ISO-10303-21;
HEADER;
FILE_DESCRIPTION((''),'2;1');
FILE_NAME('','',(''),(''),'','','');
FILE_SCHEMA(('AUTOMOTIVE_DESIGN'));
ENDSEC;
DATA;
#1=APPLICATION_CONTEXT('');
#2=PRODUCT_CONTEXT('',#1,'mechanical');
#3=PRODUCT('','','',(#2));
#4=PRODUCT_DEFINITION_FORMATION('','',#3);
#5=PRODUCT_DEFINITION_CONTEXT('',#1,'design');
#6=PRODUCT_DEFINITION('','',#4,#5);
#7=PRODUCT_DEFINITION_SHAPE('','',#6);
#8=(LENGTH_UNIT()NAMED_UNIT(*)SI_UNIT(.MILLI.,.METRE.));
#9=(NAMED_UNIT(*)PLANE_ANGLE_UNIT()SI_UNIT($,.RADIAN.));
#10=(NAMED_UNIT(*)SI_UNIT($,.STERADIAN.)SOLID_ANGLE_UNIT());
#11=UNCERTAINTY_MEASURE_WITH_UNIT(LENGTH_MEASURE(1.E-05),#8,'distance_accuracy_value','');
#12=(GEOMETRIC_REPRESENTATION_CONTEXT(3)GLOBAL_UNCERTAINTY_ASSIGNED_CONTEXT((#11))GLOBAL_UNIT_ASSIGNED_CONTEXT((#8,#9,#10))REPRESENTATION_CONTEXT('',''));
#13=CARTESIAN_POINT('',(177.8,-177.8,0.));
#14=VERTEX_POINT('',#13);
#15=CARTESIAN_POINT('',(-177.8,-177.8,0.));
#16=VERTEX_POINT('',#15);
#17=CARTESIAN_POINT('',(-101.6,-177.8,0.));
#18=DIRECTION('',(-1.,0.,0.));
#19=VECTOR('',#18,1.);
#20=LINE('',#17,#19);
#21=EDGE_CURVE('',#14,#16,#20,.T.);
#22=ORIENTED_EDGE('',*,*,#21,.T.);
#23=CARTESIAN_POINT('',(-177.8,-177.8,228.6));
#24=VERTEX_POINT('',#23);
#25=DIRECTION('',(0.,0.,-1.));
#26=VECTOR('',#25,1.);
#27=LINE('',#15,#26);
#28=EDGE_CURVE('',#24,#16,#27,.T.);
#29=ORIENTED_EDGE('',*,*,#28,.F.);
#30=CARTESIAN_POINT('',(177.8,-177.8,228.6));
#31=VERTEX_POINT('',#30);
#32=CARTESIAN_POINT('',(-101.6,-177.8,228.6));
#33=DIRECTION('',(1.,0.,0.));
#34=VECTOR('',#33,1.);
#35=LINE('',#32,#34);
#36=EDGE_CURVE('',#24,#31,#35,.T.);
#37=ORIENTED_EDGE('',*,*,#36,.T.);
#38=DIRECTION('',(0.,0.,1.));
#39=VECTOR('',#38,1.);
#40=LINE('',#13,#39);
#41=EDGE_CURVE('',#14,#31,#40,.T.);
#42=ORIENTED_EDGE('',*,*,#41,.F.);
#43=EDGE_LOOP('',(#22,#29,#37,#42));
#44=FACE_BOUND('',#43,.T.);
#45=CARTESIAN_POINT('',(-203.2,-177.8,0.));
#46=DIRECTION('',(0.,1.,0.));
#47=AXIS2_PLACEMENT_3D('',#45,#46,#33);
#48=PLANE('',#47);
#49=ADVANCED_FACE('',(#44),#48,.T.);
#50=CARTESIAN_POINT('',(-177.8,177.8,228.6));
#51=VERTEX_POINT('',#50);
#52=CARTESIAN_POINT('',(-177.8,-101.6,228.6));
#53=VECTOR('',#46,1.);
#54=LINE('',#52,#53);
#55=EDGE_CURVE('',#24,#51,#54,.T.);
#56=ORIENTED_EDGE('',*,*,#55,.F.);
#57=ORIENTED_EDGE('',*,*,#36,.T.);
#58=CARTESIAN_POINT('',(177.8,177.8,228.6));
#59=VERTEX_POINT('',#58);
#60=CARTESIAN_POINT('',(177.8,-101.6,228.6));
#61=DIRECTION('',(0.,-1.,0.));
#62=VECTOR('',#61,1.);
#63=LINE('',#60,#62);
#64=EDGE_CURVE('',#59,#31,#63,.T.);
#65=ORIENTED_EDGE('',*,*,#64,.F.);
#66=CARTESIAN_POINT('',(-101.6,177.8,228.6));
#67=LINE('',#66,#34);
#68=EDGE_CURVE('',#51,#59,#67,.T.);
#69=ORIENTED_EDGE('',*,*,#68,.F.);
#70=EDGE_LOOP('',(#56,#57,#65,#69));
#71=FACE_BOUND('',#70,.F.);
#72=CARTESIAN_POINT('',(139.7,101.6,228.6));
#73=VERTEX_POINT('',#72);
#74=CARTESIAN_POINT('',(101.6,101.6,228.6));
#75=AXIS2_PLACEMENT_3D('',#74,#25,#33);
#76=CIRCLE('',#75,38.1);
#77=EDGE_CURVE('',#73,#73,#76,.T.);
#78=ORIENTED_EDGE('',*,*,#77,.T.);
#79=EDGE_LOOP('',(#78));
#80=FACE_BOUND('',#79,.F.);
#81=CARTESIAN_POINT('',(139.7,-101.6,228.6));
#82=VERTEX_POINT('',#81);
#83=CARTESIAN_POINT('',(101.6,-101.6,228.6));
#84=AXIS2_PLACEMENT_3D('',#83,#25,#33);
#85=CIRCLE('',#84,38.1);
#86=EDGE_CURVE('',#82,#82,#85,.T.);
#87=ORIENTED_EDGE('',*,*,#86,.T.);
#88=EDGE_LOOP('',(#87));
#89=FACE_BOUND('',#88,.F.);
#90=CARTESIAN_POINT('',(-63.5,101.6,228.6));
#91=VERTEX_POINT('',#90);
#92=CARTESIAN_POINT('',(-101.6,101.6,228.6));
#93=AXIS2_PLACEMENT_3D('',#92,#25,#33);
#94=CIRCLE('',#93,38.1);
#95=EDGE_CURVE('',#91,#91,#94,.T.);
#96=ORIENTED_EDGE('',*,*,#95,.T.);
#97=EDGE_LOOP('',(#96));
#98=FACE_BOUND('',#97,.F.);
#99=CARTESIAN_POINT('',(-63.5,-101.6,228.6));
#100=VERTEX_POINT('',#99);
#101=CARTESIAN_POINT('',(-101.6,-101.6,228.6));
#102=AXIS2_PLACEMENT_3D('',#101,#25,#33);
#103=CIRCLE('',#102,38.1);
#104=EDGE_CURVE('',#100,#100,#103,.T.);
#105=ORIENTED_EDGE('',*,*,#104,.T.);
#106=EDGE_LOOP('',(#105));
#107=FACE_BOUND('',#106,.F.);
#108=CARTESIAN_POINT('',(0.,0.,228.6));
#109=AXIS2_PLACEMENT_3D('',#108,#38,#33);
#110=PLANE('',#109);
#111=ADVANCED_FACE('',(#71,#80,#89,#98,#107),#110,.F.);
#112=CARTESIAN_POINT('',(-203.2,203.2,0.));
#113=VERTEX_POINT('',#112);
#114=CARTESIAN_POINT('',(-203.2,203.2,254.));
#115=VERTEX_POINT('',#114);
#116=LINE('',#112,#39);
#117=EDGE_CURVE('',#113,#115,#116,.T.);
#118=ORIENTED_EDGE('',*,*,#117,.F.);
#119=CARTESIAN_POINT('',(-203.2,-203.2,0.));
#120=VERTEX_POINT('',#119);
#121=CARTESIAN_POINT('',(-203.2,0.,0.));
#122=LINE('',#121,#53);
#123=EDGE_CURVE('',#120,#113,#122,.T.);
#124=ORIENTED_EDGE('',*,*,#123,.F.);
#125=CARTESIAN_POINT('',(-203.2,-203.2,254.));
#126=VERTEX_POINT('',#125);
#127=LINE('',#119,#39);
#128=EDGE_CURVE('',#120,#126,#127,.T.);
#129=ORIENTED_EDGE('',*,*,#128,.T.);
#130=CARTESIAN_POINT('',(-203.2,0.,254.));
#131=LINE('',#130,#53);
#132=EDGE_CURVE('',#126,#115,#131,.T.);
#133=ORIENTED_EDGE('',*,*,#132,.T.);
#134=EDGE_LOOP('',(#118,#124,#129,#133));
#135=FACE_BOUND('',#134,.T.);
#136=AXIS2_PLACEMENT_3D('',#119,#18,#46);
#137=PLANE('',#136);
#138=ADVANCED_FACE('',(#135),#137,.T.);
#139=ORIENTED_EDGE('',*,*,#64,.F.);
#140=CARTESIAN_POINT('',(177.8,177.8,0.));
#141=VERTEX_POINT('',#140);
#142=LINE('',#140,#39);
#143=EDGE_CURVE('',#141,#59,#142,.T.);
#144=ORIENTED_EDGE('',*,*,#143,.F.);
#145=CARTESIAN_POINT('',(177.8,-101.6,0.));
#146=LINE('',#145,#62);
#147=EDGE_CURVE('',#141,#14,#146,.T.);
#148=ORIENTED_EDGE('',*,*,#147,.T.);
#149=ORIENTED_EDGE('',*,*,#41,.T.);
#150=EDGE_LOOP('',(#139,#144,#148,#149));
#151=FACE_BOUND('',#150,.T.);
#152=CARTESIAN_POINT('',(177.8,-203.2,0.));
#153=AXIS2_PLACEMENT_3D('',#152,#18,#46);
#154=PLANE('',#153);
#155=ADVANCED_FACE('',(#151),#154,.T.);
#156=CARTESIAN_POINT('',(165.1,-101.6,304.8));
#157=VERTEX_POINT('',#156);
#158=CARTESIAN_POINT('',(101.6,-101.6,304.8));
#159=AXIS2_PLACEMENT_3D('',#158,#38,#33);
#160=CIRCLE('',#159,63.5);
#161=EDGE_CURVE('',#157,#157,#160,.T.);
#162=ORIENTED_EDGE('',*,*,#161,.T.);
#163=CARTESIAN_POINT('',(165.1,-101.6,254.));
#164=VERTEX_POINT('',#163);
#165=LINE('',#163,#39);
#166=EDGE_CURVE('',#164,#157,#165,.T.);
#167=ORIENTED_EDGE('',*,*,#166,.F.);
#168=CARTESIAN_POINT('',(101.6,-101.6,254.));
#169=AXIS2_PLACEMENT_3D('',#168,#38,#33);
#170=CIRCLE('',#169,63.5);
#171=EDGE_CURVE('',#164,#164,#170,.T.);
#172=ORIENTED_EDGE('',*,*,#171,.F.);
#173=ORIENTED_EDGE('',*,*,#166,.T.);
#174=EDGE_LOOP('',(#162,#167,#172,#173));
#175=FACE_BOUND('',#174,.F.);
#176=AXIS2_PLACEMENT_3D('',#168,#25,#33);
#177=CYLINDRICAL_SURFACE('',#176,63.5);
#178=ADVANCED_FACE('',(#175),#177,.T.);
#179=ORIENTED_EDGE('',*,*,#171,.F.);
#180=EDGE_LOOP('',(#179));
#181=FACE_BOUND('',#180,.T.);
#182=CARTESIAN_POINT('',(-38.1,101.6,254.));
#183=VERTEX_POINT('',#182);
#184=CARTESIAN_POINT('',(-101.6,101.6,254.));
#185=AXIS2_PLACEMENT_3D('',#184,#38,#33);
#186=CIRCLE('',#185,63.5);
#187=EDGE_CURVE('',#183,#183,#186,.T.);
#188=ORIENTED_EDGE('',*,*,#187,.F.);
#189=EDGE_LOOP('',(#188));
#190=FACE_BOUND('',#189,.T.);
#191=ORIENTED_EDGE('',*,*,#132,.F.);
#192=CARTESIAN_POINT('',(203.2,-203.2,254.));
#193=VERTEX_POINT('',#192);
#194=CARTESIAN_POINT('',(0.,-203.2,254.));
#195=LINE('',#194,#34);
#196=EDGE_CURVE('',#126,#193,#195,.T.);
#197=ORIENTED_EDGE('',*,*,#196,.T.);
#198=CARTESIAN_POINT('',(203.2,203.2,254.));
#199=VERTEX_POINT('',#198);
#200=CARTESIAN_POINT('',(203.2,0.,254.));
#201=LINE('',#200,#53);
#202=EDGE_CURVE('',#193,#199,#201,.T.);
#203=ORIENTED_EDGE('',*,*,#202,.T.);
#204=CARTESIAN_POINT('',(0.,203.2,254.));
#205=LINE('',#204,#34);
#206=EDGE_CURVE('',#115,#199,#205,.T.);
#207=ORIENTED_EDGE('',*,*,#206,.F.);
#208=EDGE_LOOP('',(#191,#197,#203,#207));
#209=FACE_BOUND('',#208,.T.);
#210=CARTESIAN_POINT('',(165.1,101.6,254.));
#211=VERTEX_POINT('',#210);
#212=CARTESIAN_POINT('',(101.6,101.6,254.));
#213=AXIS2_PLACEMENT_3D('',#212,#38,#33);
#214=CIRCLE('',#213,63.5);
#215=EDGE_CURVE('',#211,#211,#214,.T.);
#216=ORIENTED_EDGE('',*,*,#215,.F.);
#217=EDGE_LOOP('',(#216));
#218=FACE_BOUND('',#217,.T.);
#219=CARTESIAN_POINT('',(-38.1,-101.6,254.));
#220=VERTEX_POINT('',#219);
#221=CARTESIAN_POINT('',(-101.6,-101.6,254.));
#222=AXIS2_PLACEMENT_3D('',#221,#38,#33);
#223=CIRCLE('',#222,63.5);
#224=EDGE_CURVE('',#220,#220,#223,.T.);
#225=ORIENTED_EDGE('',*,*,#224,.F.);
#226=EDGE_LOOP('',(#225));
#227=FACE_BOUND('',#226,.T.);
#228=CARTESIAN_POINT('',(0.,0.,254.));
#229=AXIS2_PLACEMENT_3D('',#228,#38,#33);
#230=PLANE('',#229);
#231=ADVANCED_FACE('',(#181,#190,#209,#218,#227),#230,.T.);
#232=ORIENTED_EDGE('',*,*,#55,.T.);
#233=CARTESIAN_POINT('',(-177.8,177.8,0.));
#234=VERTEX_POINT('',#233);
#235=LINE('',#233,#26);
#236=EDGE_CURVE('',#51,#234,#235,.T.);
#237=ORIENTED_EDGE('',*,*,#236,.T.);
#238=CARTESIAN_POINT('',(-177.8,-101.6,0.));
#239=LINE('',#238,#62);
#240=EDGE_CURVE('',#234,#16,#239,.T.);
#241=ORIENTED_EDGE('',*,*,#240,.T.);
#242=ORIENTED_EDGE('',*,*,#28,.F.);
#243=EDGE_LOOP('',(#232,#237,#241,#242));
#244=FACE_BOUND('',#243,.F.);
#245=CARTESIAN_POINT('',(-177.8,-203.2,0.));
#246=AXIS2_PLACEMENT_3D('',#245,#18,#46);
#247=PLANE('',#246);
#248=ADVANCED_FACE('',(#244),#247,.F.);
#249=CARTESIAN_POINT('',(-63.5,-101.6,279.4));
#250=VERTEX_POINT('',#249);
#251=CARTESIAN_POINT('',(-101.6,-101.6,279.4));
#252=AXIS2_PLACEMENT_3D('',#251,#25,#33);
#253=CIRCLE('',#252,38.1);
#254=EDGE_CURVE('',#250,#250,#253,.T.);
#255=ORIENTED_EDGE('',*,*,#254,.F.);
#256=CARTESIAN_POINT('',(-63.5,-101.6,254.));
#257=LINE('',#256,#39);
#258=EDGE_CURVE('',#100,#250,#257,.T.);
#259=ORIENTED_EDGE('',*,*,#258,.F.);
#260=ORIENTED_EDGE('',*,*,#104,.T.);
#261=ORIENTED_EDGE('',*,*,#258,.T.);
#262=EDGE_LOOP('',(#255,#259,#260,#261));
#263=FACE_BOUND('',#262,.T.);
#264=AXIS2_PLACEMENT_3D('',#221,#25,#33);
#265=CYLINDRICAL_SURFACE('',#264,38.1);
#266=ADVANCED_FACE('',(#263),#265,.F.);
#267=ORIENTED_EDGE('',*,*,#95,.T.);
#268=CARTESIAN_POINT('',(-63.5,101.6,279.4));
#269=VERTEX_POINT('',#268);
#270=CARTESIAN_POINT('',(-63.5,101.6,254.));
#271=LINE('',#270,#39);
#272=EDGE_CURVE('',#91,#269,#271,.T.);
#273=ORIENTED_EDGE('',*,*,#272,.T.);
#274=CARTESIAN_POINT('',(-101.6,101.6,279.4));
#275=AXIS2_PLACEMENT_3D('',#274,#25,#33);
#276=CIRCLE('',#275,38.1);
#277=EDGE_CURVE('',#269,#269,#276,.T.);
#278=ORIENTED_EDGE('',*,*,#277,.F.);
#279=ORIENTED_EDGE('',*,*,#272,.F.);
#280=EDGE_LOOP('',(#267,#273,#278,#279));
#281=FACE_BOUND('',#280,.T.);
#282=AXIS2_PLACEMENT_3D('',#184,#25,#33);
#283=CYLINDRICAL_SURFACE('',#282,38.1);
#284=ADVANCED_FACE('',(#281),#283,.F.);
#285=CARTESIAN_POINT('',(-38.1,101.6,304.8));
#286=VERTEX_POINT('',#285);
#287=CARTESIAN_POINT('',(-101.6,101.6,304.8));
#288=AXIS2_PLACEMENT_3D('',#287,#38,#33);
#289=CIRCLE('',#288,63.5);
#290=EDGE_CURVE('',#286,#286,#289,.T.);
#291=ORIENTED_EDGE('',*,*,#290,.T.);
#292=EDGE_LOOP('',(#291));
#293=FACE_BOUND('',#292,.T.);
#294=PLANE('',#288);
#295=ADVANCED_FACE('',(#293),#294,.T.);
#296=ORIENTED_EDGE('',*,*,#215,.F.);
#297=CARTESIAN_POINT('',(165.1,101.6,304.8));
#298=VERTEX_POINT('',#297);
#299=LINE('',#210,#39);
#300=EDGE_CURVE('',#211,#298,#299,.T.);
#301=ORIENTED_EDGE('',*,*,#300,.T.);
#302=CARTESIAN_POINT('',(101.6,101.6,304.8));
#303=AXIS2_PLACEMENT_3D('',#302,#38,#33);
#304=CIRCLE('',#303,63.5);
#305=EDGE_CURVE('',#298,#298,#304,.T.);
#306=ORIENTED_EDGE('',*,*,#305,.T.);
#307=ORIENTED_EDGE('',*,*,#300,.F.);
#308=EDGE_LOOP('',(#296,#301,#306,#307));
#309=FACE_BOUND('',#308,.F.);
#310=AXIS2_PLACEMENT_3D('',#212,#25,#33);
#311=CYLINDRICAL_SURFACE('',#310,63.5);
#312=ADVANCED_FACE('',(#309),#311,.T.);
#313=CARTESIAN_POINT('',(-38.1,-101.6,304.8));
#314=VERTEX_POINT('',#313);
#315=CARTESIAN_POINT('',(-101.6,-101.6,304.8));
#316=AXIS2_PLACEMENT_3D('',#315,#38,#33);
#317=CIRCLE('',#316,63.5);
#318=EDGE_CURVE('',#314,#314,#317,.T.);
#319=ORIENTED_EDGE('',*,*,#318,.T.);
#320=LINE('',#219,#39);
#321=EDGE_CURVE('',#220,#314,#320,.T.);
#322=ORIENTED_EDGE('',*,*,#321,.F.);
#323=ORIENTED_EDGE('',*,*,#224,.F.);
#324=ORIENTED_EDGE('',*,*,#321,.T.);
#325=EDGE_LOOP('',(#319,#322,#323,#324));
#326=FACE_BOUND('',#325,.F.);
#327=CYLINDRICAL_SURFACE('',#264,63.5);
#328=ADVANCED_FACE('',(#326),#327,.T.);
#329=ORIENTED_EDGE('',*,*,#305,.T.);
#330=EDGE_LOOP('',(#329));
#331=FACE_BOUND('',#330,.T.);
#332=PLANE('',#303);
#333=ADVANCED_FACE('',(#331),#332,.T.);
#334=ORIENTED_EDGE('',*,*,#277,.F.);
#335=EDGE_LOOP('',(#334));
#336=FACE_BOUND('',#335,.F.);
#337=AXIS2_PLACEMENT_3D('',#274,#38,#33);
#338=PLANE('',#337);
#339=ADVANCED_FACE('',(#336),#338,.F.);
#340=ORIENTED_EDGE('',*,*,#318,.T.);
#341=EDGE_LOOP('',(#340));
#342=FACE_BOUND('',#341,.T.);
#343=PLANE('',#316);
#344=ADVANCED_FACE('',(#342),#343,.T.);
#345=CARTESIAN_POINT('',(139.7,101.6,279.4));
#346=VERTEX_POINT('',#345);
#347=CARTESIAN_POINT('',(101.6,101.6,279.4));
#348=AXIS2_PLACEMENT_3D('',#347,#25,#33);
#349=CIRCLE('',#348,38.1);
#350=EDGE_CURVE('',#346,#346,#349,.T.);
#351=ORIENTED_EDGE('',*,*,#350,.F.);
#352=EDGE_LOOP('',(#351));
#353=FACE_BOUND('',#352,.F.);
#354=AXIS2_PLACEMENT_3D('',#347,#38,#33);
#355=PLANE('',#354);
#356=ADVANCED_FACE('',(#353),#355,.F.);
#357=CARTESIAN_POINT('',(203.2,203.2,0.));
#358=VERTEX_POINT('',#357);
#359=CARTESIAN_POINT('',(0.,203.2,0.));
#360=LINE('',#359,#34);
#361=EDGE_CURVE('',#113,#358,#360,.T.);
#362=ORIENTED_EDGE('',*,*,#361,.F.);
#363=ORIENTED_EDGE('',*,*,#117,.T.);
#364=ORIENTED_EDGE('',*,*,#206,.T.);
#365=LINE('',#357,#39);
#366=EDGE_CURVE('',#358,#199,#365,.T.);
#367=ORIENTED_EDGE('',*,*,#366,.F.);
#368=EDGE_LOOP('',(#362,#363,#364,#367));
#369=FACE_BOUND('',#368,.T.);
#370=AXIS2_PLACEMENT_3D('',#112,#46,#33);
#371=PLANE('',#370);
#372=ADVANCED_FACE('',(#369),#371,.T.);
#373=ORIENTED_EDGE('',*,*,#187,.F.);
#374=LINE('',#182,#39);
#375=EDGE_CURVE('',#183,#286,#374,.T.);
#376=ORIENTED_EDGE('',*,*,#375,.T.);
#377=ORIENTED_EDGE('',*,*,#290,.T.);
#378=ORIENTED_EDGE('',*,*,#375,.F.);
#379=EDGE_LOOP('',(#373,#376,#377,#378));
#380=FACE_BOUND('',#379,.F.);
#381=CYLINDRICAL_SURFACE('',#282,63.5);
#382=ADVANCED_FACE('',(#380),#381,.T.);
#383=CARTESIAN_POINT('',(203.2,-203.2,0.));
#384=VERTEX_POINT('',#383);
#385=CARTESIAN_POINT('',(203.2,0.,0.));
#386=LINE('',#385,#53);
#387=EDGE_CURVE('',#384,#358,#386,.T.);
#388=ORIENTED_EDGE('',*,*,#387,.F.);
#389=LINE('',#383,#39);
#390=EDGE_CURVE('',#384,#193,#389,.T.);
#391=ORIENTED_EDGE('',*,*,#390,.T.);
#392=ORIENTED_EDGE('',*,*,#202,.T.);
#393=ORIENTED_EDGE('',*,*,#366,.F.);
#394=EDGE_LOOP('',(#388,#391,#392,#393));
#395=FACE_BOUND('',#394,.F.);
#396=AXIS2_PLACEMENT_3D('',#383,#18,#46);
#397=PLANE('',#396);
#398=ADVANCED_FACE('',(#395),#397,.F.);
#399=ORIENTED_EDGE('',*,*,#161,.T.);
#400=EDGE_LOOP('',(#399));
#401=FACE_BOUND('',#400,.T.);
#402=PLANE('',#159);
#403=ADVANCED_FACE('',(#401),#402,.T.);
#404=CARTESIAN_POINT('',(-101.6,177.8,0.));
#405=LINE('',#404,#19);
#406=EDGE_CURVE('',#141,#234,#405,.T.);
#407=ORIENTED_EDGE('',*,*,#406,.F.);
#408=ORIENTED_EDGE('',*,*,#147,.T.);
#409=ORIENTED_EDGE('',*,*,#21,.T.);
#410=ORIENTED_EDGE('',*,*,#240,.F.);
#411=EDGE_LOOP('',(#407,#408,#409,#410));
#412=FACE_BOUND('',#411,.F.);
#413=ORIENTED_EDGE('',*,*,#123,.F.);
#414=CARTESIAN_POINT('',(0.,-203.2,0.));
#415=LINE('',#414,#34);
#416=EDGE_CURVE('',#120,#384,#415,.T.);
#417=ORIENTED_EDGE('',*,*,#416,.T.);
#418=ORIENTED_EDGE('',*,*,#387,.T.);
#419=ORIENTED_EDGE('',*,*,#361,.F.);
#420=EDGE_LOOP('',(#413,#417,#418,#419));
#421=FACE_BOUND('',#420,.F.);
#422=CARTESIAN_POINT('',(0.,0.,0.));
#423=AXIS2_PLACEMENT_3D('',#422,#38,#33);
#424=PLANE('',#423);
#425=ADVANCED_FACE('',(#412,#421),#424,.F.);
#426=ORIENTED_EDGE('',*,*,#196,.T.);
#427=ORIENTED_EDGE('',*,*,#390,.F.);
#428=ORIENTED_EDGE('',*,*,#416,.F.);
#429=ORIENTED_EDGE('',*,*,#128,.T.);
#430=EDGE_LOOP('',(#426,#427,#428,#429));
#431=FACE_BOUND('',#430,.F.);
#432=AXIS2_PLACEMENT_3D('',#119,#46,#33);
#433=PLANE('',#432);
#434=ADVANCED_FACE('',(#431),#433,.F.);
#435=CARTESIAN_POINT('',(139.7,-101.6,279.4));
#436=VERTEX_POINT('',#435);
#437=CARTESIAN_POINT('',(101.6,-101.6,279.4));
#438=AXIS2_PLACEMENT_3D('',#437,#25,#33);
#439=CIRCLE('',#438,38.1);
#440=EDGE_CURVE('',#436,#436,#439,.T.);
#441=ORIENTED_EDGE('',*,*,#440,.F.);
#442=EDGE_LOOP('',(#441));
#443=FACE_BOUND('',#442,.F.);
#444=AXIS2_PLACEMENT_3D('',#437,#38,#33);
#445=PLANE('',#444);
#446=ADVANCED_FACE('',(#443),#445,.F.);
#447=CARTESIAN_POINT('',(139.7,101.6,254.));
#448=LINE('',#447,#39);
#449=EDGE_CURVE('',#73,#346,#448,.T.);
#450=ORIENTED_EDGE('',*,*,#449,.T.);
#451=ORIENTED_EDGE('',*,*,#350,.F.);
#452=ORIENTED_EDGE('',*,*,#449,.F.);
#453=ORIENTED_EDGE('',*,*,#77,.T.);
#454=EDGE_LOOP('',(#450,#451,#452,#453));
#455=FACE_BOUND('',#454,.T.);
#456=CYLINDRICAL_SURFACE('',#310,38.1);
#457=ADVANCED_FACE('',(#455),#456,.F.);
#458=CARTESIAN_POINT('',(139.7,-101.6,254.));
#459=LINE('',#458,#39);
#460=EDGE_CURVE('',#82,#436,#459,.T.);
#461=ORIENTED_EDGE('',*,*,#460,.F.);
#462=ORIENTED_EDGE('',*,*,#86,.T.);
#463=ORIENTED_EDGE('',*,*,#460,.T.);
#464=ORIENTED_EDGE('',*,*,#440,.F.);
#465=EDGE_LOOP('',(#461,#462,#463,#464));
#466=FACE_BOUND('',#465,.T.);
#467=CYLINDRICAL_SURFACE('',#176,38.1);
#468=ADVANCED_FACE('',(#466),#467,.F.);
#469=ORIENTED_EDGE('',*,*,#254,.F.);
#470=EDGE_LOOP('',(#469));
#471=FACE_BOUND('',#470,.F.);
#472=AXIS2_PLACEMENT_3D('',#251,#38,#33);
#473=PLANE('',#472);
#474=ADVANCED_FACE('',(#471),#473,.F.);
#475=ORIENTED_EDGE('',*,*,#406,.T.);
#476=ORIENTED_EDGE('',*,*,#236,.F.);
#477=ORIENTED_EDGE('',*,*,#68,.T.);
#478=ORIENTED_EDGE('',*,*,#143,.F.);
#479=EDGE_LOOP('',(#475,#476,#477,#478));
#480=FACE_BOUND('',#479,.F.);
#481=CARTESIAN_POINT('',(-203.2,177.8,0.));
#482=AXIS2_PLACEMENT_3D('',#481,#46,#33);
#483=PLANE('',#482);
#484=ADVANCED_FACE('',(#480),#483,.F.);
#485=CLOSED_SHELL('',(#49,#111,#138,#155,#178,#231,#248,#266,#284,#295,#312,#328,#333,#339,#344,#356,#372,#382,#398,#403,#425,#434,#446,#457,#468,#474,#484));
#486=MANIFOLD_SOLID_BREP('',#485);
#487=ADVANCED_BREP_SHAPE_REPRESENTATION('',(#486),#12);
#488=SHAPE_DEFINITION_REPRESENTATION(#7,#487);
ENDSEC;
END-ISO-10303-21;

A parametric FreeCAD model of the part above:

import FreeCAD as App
import Part
import Sketcher
Q = App.Units.Quantity


def faces_at(feature, points):
    """Names of the faces that lie closest to the given points."""
    faces = feature.Shape.Faces
    near = lambda p: min(range(len(faces)), key=lambda i: faces[i].distToShape(Part.Vertex(*p))[0])
    return sorted({f"Face{near(p) + 1}" for p in points})


def add_polygon(sketch, points):
    """Adds a closed chain of lines whose ends are joined by coincident constraints."""
    first, n = sketch.GeometryCount, len(points)
    for a, b in zip(points, points[1:] + points[:1]):
        sketch.addGeometry(Part.LineSegment(App.Vector(*a, 0), App.Vector(*b, 0)), False)
    for i in range(n):
        sketch.addConstraint(Sketcher.Constraint("Coincident", first + i, 2, first + (i + 1) % n, 1))

doc = App.newDocument("Part")
body = doc.addObject("PartDesign::Body", "Body")

# Sketch on XY plane
sketch1 = body.newObject("Sketcher::SketchObject", "Sketch")
sketch1.AttachmentSupport = (doc.getObject("XY_Plane"), [""])
sketch1.MapMode = "FlatFace"
add_polygon(sketch1, [(-203.2, 203.2), (-203.2, -203.2), (203.2, -203.2), (203.2, 203.2)])  # lines 0-3
sketch1.addConstraint([
    Sketcher.Constraint("Vertical", 0),
    Sketcher.Constraint("Horizontal", 1),
    Sketcher.Constraint("Vertical", 2),
    Sketcher.Constraint("Horizontal", 3),
    Sketcher.Constraint("Symmetric", 0, 2, 2, 2, -1, 1),
    Sketcher.Constraint("Equal", 3, 0),
    Sketcher.Constraint("DistanceX", 1, 1, 1, 2, Q("16 in")),
])
pad1 = body.newObject("PartDesign::Pad", "Pad")
pad1.Profile = sketch1
pad1.Length = Q("10 in")

# Sketch on XY plane
sketch2 = body.newObject("Sketcher::SketchObject", "Sketch001")
sketch2.AttachmentSupport = (doc.getObject("XY_Plane"), [""])
sketch2.MapMode = "FlatFace"
sketch2.AttachmentOffset = App.Placement(App.Vector(0, 0, 10 * 25.4), App.Rotation())
sketch2.addGeometry([
    Part.Circle(App.Vector(101.6, 101.6, 0), App.Vector(0, 0, 1), 63.5),
    Part.Circle(App.Vector(101.6, -101.6, 0), App.Vector(0, 0, 1), 63.5),
    Part.Circle(App.Vector(-101.6, -101.6, 0), App.Vector(0, 0, 1), 63.5),
    Part.Circle(App.Vector(-101.6, 101.6, 0), App.Vector(0, 0, 1), 63.5),
], False)
sketch2.addConstraint([
    Sketcher.Constraint("Equal", 0, 1),
    Sketcher.Constraint("Equal", 1, 2),
    Sketcher.Constraint("Equal", 2, 3),
    Sketcher.Constraint("Symmetric", 0, 3, 2, 3, -1, 1),
    Sketcher.Constraint("Symmetric", 1, 3, 3, 3, -1, 1),
    Sketcher.Constraint("Symmetric", 1, 3, 2, 3, -2),
    Sketcher.Constraint("Diameter", 0, Q("5 in")),
    Sketcher.Constraint("DistanceX", -1, 1, 0, 3, Q("4 in")),
    Sketcher.Constraint("DistanceY", -1, 1, 0, 3, Q("4 in")),
])
pad2 = body.newObject("PartDesign::Pad", "Pad001")
pad2.Profile = sketch2
pad2.Length = Q("2 in")
doc.recompute()

thickness = body.newObject("PartDesign::Thickness", "Thickness")
thickness.Base = (pad2, faces_at(pad2, [(0, 0, 0)]))
thickness.Value = Q("1 in")
thickness.Reversed = True
thickness.Join = "Intersection"

doc.recompute()
